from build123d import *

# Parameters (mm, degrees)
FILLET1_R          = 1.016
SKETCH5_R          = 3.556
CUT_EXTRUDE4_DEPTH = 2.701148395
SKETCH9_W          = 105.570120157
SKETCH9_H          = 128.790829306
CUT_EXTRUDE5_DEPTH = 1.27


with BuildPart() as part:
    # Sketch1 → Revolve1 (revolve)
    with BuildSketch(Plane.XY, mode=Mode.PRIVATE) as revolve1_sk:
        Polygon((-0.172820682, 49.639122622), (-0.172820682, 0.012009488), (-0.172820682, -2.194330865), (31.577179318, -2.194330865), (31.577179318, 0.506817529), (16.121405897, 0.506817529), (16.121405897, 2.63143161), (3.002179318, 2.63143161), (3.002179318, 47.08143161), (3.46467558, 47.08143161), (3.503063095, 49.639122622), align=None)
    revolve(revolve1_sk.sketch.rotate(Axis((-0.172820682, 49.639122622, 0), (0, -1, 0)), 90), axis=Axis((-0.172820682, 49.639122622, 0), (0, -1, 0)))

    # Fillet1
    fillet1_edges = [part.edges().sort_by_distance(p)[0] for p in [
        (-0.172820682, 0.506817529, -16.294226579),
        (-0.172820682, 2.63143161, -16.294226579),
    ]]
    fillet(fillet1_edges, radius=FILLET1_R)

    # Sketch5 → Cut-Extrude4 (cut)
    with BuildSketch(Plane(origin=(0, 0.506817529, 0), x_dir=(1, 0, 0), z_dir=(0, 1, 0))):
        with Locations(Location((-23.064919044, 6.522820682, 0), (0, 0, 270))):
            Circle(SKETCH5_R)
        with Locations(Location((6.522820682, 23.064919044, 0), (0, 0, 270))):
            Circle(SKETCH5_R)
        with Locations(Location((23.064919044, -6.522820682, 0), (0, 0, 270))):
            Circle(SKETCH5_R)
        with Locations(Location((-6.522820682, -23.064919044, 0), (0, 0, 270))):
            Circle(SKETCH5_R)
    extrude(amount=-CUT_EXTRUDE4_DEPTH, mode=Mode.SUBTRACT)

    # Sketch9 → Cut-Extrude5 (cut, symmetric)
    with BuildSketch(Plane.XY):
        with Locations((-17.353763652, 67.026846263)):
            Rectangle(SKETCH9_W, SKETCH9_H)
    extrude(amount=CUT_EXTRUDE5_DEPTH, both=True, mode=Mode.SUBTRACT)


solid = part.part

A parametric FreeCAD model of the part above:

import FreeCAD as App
import Part
import Sketcher
Q = App.Units.Quantity


def edges_at(feature, points):
    """Names of the edges that pass closest to the given points."""
    edges = feature.Shape.Edges
    near = lambda p: min(range(len(edges)), key=lambda i: edges[i].distToShape(Part.Vertex(*p))[0])
    return sorted({f"Edge{near(p) + 1}" for p in points})

doc = App.newDocument("Part")
params = doc.addObject("Spreadsheet::Sheet", "Params")
for row, (alias, value) in enumerate([
    ("sketch1_width", "1.25 in"),
    ("sketch1_height", "1.75 in"),
    ("revolution_angle", "360 deg"),
    ("fillet_radius", "0.04 in"),
    ("sketch2_diameter", "0.28 in"),
    ("pocket1_length", "2.701148 mm"),
    ("pocket2_length", "0.1 in"),
], start=1):
    params.set(f"A{row}", alias)
    params.set(f"B{row}", "=" + value)
    params.setAlias(f"B{row}", alias)

body = doc.addObject("PartDesign::Body", "Body")

# Sketch on XY plane
sketch1 = doc.addObject("Sketcher::SketchObject", "Sketch")
body.addObject(sketch1)
sketch1.AttachmentSupport = (doc.XY_Plane, [""])
sketch1.MapMode = "FlatFace"
sketch1.addGeometry(Part.LineSegment(App.Vector(-0.17, 49.64, 0), App.Vector(-0.17, -2.19, 0)), False)
sketch1.addGeometry(Part.LineSegment(App.Vector(-0.17, -2.19, 0), App.Vector(31.58, -2.19, 0)), False)
sketch1.addGeometry(Part.LineSegment(App.Vector(31.58, -2.19, 0), App.Vector(31.58, 0.51, 0)), False)
sketch1.addGeometry(Part.LineSegment(App.Vector(31.58, 0.51, 0), App.Vector(16.12, 0.51, 0)), False)
sketch1.addGeometry(Part.LineSegment(App.Vector(16.12, 0.51, 0), App.Vector(16.12, 2.63, 0)), False)
sketch1.addGeometry(Part.LineSegment(App.Vector(16.12, 2.63, 0), App.Vector(3, 2.63, 0)), False)
sketch1.addGeometry(Part.LineSegment(App.Vector(3, 2.63, 0), App.Vector(3, 47.08, 0)), False)
sketch1.addGeometry(Part.LineSegment(App.Vector(3, 47.08, 0), App.Vector(3.46, 47.08, 0)), False)
sketch1.addGeometry(Part.LineSegment(App.Vector(3.46, 47.08, 0), App.Vector(3.5, 49.64, 0)), False)
sketch1.addGeometry(Part.LineSegment(App.Vector(3.5, 49.64, 0), App.Vector(-0.17, 49.64, 0)), False)
sketch1.addGeometry(Part.LineSegment(App.Vector(-0.17, 49.64, 0), App.Vector(-0.17, -2.19, 0)), True)  # axis
sketch1.addConstraint(Sketcher.Constraint("Coincident", 0, 2, 1, 1))
sketch1.addConstraint(Sketcher.Constraint("Coincident", 1, 2, 2, 1))
sketch1.addConstraint(Sketcher.Constraint("Coincident", 2, 2, 3, 1))
sketch1.addConstraint(Sketcher.Constraint("Coincident", 3, 2, 4, 1))
sketch1.addConstraint(Sketcher.Constraint("Coincident", 4, 2, 5, 1))
sketch1.addConstraint(Sketcher.Constraint("Coincident", 5, 2, 6, 1))
sketch1.addConstraint(Sketcher.Constraint("Coincident", 6, 2, 7, 1))
sketch1.addConstraint(Sketcher.Constraint("Coincident", 7, 2, 8, 1))
sketch1.addConstraint(Sketcher.Constraint("Coincident", 8, 2, 9, 1))
sketch1.addConstraint(Sketcher.Constraint("Coincident", 9, 2, 0, 1))
sketch1.addConstraint(Sketcher.Constraint("Vertical", 0))
sketch1.addConstraint(Sketcher.Constraint("Horizontal", 1))
sketch1.addConstraint(Sketcher.Constraint("Vertical", 2))
sketch1.addConstraint(Sketcher.Constraint("Horizontal", 3))
sketch1.addConstraint(Sketcher.Constraint("Vertical", 4))
sketch1.addConstraint(Sketcher.Constraint("Horizontal", 5))
sketch1.addConstraint(Sketcher.Constraint("Vertical", 6))
sketch1.addConstraint(Sketcher.Constraint("Horizontal", 7))
sketch1.addConstraint(Sketcher.Constraint("Horizontal", 9))
sketch1.addConstraint(Sketcher.Constraint("Vertical", 10))
sketch1.addConstraint(Sketcher.Constraint("Coincident", 10, 1, 9, 2))
sketch1.addConstraint(Sketcher.Constraint("Horizontal", 1, 2, 10, 2))
sketch1.addConstraint(Sketcher.Constraint("DistanceX", 1, 1, 1, 2, Q("1.25 in")))
sketch1.addConstraint(Sketcher.Constraint("DistanceY", 6, 1, 6, 2, Q("1.75 in")))
sketch1.addConstraint(Sketcher.Constraint("DistanceX", 0, 2, 5, 2, Q("0.125 in")))
sketch1.addConstraint(Sketcher.Constraint("DistanceY", 2, 1, 2, 2, Q("2.701148 mm")))
sketch1.addConstraint(Sketcher.Constraint("Distance", 8, Q("2.557979 mm")))
sketch1.addConstraint(Sketcher.Constraint("DistanceX", 3, 2, 3, 1, Q("15.455773 mm")))
sketch1.addConstraint(Sketcher.Constraint("DistanceX", 7, 1, 7, 2, Q("0.462496 mm")))
sketch1.addConstraint(Sketcher.Constraint("DistanceX", 9, 2, 9, 1, Q("3.675884 mm")))
sketch1.addConstraint(Sketcher.Constraint("DistanceY", 0, 2, 0, 1, Q("51.833453 mm")))
sketch1.addConstraint(Sketcher.Constraint("DistanceX", 0, 2, -1, 1, Q("0.172821 mm")))
sketch1.addConstraint(Sketcher.Constraint("DistanceY", 0, 2, -1, 1, Q("2.194331 mm")))
sketch1.setExpression("Constraints[22]", "Params.sketch1_width")
sketch1.setExpression("Constraints[23]", "Params.sketch1_height")
revolution = doc.addObject("PartDesign::Revolution", "Revolution")
body.addObject(revolution)
revolution.Profile = sketch1
revolution.ReferenceAxis = (sketch1, ["Axis0"])
revolution.setExpression("Angle", "Params.revolution_angle")
doc.recompute()

fillet = doc.addObject("PartDesign::Fillet", "Fillet")
body.addObject(fillet)
fillet.Base = (revolution, edges_at(revolution, [(-0.173, 0.507, -16.294), (-0.173, 2.631, -16.294)]))
fillet.setExpression("Radius", "Params.fillet_radius")

# Sketch on XZ plane
sketch2 = doc.addObject("Sketcher::SketchObject", "Sketch001")
body.addObject(sketch2)
sketch2.AttachmentSupport = (doc.XZ_Plane, [""])
sketch2.MapMode = "FlatFace"
sketch2.AttachmentOffset = App.Placement(App.Vector(0, 0, -0.506818), App.Rotation())
sketch2.addGeometry(Part.Circle(App.Vector(-23.1, -6.5, 0), App.Vector(0, 0, 1), 3.6), False)
sketch2.addGeometry(Part.Circle(App.Vector(6.5, -23.1, 0), App.Vector(0, 0, 1), 3.6), False)
sketch2.addGeometry(Part.Circle(App.Vector(23.1, 6.5, 0), App.Vector(0, 0, 1), 3.6), False)
sketch2.addGeometry(Part.Circle(App.Vector(-6.5, 23.1, 0), App.Vector(0, 0, 1), 3.6), False)
sketch2.addConstraint(Sketcher.Constraint("Equal", 0, 1))
sketch2.addConstraint(Sketcher.Constraint("Equal", 1, 2))
sketch2.addConstraint(Sketcher.Constraint("Equal", 2, 3))
sketch2.addConstraint(Sketcher.Constraint("Symmetric", 0, 3, 2, 3, -1, 1))
sketch2.addConstraint(Sketcher.Constraint("Symmetric", 1, 3, 3, 3, -1, 1))
sketch2.addConstraint(Sketcher.Constraint("Diameter", 0, Q("0.28 in")))
sketch2.addConstraint(Sketcher.Constraint("DistanceY", 1, 3, 0, 3, Q("16.542098 mm")))
sketch2.addConstraint(Sketcher.Constraint("DistanceX", 1, 3, 2, 3, Q("16.542098 mm")))
sketch2.addConstraint(Sketcher.Constraint("DistanceX", 0, 3, -1, 1, Q("23.064919 mm")))
sketch2.addConstraint(Sketcher.Constraint("DistanceY", 0, 3, -1, 1, Q("6.522821 mm")))
sketch2.setExpression("Constraints[5]", "Params.sketch2_diameter")
pocket1 = doc.addObject("PartDesign::Pocket", "Pocket")
body.addObject(pocket1)
pocket1.Profile = sketch2
pocket1.setExpression("Length", "Params.pocket1_length")
pocket1.Reversed = True

# Sketch on XY plane
sketch3 = doc.addObject("Sketcher::SketchObject", "Sketch002")
body.addObject(sketch3)
sketch3.AttachmentSupport = (doc.XY_Plane, [""])
sketch3.MapMode = "FlatFace"
sketch3.addGeometry(Part.LineSegment(App.Vector(-70, 131, 0), App.Vector(-70, 3, 0)), False)
sketch3.addGeometry(Part.LineSegment(App.Vector(-70, 3, 0), App.Vector(35, 3, 0)), False)
sketch3.addGeometry(Part.LineSegment(App.Vector(35, 3, 0), App.Vector(35, 131, 0)), False)
sketch3.addGeometry(Part.LineSegment(App.Vector(35, 131, 0), App.Vector(-70, 131, 0)), False)
sketch3.addConstraint(Sketcher.Constraint("Coincident", 0, 2, 1, 1))
sketch3.addConstraint(Sketcher.Constraint("Coincident", 1, 2, 2, 1))
sketch3.addConstraint(Sketcher.Constraint("Coincident", 2, 2, 3, 1))
sketch3.addConstraint(Sketcher.Constraint("Coincident", 3, 2, 0, 1))
sketch3.addConstraint(Sketcher.Constraint("Vertical", 0))
sketch3.addConstraint(Sketcher.Constraint("Horizontal", 1))
sketch3.addConstraint(Sketcher.Constraint("Vertical", 2))
sketch3.addConstraint(Sketcher.Constraint("Horizontal", 3))
sketch3.addConstraint(Sketcher.Constraint("DistanceX", 1, 1, 1, 2, Q("105.57012 mm")))
sketch3.addConstraint(Sketcher.Constraint("DistanceY", 0, 2, 0, 1, Q("128.790829 mm")))
sketch3.addConstraint(Sketcher.Constraint("DistanceY", -1, 1, 0, 2, Q("2.631432 mm")))
sketch3.addConstraint(Sketcher.Constraint("DistanceX", 0, 2, -1, 1, Q("70.138824 mm")))
pocket2 = doc.addObject("PartDesign::Pocket", "Pocket001")
body.addObject(pocket2)
pocket2.Profile = sketch3
pocket2.setExpression("Length", "Params.pocket2_length")
pocket2.Midplane = True

doc.recompute()
